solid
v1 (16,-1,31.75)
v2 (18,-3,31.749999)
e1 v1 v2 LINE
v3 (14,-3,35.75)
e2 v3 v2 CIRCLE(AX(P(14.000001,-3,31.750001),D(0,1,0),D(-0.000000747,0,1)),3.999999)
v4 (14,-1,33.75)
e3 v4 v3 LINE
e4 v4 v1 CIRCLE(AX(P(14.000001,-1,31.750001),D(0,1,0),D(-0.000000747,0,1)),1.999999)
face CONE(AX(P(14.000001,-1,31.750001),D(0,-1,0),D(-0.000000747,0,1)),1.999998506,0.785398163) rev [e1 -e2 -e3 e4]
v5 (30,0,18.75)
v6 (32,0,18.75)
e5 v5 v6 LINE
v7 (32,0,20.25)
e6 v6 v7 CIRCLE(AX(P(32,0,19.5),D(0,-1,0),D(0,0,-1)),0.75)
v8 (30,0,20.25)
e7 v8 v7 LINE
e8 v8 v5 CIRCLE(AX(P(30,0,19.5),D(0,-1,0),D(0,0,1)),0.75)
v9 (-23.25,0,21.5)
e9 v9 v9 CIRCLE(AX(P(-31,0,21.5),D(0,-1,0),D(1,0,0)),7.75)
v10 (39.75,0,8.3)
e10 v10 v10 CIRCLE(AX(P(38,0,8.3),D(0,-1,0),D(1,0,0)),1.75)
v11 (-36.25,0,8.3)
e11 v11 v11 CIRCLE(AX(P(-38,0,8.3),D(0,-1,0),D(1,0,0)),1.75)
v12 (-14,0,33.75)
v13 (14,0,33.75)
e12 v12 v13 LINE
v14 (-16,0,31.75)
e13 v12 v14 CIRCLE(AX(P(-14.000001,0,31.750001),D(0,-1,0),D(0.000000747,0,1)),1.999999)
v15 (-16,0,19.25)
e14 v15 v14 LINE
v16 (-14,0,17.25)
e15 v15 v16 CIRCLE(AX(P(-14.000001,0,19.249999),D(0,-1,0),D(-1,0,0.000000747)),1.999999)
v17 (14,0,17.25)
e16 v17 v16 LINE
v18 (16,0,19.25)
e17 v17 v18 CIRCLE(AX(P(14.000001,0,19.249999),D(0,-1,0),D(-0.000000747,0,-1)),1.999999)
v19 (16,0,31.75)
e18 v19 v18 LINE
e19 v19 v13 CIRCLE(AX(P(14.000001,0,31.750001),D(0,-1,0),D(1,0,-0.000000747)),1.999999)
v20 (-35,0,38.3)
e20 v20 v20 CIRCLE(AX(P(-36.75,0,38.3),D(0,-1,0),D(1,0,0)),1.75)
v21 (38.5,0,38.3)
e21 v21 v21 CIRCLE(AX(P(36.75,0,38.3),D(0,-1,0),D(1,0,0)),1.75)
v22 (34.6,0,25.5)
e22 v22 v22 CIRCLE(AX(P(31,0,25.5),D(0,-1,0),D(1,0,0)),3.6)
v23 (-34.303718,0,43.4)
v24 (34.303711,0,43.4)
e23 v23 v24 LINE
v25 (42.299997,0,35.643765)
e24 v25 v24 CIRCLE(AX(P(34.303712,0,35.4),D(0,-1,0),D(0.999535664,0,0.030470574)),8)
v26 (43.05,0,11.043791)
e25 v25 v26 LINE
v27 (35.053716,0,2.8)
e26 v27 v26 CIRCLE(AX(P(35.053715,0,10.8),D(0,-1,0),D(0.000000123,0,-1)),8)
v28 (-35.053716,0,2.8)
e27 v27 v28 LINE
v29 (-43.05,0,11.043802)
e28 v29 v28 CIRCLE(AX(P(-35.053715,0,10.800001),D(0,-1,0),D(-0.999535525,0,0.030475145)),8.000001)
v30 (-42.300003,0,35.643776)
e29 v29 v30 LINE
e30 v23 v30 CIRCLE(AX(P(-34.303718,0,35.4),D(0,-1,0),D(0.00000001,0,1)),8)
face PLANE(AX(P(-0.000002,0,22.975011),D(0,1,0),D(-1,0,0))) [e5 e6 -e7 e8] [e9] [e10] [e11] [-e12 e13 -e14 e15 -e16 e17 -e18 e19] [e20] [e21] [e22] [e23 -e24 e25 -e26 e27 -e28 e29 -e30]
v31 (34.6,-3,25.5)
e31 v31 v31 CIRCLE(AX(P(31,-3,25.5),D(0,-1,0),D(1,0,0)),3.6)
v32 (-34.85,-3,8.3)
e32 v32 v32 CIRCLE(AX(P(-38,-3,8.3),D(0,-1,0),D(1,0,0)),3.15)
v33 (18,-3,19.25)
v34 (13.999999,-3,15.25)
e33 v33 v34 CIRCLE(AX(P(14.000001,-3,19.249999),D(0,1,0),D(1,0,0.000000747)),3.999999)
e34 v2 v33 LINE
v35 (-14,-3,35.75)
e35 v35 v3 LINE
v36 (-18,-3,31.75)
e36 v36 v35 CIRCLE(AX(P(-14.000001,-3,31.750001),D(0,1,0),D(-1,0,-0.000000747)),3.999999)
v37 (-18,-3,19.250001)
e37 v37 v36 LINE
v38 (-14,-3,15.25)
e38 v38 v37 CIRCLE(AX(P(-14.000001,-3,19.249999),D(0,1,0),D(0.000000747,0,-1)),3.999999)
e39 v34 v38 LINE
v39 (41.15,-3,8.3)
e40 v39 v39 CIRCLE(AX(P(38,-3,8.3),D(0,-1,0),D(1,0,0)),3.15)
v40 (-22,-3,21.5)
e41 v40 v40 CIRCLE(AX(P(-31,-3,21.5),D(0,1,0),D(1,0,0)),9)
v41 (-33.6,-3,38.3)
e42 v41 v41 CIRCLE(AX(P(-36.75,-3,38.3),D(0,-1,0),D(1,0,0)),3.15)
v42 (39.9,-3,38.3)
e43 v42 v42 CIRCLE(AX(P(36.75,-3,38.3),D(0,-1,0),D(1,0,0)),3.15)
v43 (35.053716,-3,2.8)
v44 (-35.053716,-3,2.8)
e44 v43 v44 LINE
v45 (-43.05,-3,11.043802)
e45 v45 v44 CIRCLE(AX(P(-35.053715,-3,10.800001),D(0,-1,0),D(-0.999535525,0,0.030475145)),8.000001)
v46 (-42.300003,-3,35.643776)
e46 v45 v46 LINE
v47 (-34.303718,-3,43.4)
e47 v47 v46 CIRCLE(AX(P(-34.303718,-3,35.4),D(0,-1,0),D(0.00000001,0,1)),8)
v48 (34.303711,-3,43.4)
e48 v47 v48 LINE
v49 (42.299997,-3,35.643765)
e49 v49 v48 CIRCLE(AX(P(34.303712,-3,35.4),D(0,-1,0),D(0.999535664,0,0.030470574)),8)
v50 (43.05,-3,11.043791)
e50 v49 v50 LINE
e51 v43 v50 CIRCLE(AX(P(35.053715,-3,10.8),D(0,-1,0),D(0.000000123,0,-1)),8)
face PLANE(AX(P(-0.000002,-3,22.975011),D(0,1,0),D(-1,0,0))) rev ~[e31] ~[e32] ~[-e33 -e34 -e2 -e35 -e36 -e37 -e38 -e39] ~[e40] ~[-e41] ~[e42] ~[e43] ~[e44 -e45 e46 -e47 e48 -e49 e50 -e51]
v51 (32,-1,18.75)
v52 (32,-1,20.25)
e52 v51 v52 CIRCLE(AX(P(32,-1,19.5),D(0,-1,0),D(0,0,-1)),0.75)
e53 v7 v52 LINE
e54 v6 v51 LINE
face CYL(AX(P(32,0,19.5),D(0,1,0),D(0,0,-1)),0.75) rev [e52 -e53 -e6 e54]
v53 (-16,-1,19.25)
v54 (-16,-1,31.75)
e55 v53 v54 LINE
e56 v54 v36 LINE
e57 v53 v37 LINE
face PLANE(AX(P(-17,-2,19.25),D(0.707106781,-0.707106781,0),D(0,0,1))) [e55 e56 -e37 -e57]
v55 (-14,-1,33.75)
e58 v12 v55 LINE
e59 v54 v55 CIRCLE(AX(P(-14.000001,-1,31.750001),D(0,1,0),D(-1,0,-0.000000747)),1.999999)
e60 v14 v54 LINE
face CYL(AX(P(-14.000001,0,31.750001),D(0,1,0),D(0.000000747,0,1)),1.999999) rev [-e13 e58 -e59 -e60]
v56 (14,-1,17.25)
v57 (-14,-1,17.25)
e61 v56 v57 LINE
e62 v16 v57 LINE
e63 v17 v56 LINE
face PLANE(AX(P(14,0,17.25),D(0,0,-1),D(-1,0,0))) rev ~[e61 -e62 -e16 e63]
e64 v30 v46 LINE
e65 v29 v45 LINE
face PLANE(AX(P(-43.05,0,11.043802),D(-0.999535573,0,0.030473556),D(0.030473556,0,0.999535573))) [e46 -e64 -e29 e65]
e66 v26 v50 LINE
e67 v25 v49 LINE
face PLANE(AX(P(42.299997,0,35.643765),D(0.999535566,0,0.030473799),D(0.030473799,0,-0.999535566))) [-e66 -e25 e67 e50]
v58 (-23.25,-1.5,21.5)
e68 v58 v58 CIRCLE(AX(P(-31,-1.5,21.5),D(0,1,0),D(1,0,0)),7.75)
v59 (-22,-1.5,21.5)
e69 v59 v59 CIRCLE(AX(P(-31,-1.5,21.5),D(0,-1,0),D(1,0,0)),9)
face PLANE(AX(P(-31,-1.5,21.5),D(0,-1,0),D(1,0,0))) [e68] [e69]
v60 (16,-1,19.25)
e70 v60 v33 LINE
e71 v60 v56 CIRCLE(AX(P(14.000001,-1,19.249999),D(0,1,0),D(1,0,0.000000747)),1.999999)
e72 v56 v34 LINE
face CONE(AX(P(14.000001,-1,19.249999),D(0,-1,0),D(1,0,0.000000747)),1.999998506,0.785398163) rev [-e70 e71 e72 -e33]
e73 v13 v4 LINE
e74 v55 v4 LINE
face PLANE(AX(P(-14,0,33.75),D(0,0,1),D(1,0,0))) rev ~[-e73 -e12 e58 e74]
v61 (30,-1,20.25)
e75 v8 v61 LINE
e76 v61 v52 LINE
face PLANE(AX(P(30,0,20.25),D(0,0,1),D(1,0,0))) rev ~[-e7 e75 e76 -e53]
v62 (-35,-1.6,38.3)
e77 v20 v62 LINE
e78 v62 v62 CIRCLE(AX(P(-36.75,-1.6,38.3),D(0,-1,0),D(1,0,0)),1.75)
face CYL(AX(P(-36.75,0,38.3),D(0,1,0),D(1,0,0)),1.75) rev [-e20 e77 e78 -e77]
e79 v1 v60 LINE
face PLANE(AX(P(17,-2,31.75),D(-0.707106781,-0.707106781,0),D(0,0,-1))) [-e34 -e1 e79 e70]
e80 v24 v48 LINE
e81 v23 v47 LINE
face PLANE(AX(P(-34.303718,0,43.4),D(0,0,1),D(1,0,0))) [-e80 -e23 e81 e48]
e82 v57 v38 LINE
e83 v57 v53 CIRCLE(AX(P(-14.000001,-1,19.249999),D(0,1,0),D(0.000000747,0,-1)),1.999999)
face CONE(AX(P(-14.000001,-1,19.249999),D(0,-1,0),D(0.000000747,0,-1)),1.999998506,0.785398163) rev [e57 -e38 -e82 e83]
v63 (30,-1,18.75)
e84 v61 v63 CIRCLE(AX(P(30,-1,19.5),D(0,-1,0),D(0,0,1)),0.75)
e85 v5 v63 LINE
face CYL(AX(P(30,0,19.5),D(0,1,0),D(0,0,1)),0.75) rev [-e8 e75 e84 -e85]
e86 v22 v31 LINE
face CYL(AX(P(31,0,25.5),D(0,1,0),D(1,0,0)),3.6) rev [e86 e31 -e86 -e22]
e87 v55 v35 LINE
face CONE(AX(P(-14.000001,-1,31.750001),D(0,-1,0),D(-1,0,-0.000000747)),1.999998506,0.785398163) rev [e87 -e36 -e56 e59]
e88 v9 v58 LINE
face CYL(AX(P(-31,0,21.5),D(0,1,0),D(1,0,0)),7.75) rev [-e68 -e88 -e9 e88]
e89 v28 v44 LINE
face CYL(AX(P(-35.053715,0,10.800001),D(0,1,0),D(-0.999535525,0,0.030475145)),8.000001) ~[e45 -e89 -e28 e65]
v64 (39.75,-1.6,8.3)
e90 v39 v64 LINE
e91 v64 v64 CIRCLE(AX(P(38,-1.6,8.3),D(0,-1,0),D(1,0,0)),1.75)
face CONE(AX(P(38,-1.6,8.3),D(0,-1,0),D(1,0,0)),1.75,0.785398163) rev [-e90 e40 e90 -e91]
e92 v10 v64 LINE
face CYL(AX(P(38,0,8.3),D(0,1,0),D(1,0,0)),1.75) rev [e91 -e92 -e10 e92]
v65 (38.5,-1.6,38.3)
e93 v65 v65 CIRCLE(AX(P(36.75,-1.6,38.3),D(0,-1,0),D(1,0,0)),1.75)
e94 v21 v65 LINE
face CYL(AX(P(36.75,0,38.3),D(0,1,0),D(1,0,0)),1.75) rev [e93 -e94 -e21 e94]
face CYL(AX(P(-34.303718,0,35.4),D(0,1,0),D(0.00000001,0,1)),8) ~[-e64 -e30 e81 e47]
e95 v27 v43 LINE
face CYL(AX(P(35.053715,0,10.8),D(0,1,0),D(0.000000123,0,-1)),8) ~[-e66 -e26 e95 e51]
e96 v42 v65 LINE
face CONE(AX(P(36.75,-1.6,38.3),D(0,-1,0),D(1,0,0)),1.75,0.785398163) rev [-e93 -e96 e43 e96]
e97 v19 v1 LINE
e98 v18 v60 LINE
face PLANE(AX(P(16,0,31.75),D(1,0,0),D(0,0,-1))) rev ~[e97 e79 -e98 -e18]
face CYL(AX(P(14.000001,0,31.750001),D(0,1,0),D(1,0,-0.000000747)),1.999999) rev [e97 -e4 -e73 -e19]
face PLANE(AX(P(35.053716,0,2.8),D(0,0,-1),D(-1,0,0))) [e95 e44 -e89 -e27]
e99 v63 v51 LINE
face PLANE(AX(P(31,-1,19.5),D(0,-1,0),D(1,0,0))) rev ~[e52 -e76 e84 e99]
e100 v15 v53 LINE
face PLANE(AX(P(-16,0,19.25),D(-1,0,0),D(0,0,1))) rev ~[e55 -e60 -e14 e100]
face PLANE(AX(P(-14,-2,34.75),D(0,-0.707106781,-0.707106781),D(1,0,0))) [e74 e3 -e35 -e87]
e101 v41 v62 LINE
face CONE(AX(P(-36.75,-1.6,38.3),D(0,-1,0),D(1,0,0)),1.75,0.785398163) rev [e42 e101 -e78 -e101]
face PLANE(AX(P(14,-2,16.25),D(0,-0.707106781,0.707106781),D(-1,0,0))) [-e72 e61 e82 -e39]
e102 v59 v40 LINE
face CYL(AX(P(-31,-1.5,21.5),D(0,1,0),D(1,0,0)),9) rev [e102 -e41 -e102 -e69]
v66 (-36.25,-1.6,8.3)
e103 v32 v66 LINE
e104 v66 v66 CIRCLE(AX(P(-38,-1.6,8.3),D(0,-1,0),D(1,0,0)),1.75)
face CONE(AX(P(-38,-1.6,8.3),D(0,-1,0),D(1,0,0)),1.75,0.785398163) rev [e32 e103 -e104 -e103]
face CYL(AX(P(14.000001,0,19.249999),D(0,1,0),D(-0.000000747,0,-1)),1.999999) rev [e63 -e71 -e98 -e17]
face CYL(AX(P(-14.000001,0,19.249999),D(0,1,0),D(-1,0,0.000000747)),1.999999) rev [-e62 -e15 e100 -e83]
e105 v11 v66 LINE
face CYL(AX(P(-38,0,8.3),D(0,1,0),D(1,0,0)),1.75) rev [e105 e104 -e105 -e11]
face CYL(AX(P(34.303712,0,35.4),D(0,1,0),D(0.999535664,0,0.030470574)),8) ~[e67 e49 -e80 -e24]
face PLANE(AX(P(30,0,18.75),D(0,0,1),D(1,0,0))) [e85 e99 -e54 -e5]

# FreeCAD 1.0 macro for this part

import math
import FreeCAD as App
import Part
import Sketcher
from FreeCAD import Vector


def edges_at(feature, points):
    """Names of the edges that pass closest to the given points."""
    edges = feature.Shape.Edges
    near = lambda p: min(range(len(edges)), key=lambda i: edges[i].distToShape(Part.Vertex(*p))[0])
    return sorted({f"Edge{near(p) + 1}" for p in points})

doc = App.newDocument("Part")
params = doc.addObject("Spreadsheet::Sheet", "Params")
for row, (alias, value) in enumerate([
    ("sketch1_radius", "8 mm"),
    ("sketch1_radius2", "8.000001 mm"),
    ("sketch1_radius3", "8 mm"),
    ("sketch1_radius4", "8 mm"),
    ("sketch1_radius5", "1.999999 mm"),
    ("pad1_length", "3 mm"),
    ("chamfer_size", "2 mm"),
    ("chamfer2_size", "1.4 mm"),
    ("sketch2_diameter", "18 mm"),
    ("sketch3_width", "2 mm"),
    ("sketch3_radius", "0.75 mm"),
    ("pocket2_length", "1 mm"),
], start=1):
    params.set(f"A{row}", alias)
    params.set(f"B{row}", "=" + value)
    params.setAlias(f"B{row}", alias)

body = doc.addObject("PartDesign::Body", "Body")

# Sketch on XZ plane
sketch1 = body.newObject("Sketcher::SketchObject", "Sketch")
sketch1.AttachmentSupport = (doc.getObject("XZ_Plane"), [""])
sketch1.MapMode = "FlatFace"
sketch1.addGeometry(Part.LineSegment(Vector(34.303711, 43.4, 0), Vector(-34.303718, 43.4, 0)), False)
sketch1.addGeometry(Part.ArcOfCircle(Part.Circle(Vector(-34.303718, 35.4, 0), Vector(0, 0, 1), 8), math.radians(89.999999), math.radians(178.253813)), False)
sketch1.addGeometry(Part.LineSegment(Vector(-42.300003, 35.643776, 0), Vector(-43.05, 11.043802, 0)), False)
sketch1.addGeometry(Part.ArcOfCircle(Part.Circle(Vector(-35.053715, 10.800001, 0), Vector(0, 0, 1), 8.000001), math.radians(178.253632), math.radians(269.999993)), False)
sketch1.addGeometry(Part.LineSegment(Vector(-35.053716, 2.8, 0), Vector(35.053716, 2.8, 0)), False)
sketch1.addGeometry(Part.ArcOfCircle(Part.Circle(Vector(35.053715, 10.8, 0), Vector(0, 0, 1), 8), math.radians(-89.999993), math.radians(1.746291)), False)
sketch1.addGeometry(Part.LineSegment(Vector(43.05, 11.043791, 0), Vector(42.299997, 35.643765, 0)), False)
sketch1.addGeometry(Part.ArcOfCircle(Part.Circle(Vector(34.303712, 35.4, 0), Vector(0, 0, 1), 8), math.radians(1.746106), math.radians(90.000008)), False)
sketch1.addGeometry(Part.Circle(Vector(38, 8.3, 0), Vector(0, 0, 1), 1.75), False)
sketch1.addGeometry(Part.Circle(Vector(-38, 8.3, 0), Vector(0, 0, 1), 1.75), False)
sketch1.addGeometry(Part.Circle(Vector(-31, 21.5, 0), Vector(0, 0, 1), 7.75), False)
sketch1.addGeometry(Part.Circle(Vector(31, 25.5, 0), Vector(0, 0, 1), 3.6), False)
sketch1.addGeometry(Part.Circle(Vector(36.75, 38.3, 0), Vector(0, 0, 1), 1.75), False)
sketch1.addGeometry(Part.LineSegment(Vector(-14, 33.75, 0), Vector(14, 33.75, 0)), False)
sketch1.addGeometry(Part.ArcOfCircle(Part.Circle(Vector(14.000001, 31.750001, 0), Vector(0, 0, 1), 1.999999), math.radians(-0.000043), math.radians(90.000043)), False)
sketch1.addGeometry(Part.LineSegment(Vector(16, 31.75, 0), Vector(16, 19.25, 0)), False)
sketch1.addGeometry(Part.ArcOfCircle(Part.Circle(Vector(14.000001, 19.249999, 0), Vector(0, 0, 1), 1.999999), math.radians(-90.000043), math.radians(0.000043)), False)
sketch1.addGeometry(Part.LineSegment(Vector(14, 17.25, 0), Vector(-14, 17.25, 0)), False)
sketch1.addGeometry(Part.ArcOfCircle(Part.Circle(Vector(-14.000001, 19.249999, 0), Vector(0, 0, 1), 1.999999), math.radians(179.999957), math.radians(270.000043)), False)
sketch1.addGeometry(Part.LineSegment(Vector(-16, 19.25, 0), Vector(-16, 31.75, 0)), False)
sketch1.addGeometry(Part.ArcOfCircle(Part.Circle(Vector(-14.000001, 31.750001, 0), Vector(0, 0, 1), 1.999999), math.radians(89.999957), math.radians(180.000043)), False)
sketch1.addGeometry(Part.Circle(Vector(-36.75, 38.3, 0), Vector(0, 0, 1), 1.75), False)
sketch1.addConstraint(Sketcher.Constraint("Coincident", 0, 2, 1, 1))
sketch1.addConstraint(Sketcher.Constraint("Coincident", 1, 2, 2, 1))
sketch1.addConstraint(Sketcher.Constraint("Coincident", 2, 2, 3, 1))
sketch1.addConstraint(Sketcher.Constraint("Coincident", 3, 2, 4, 1))
sketch1.addConstraint(Sketcher.Constraint("Coincident", 4, 2, 5, 1))
sketch1.addConstraint(Sketcher.Constraint("Coincident", 5, 2, 6, 1))
sketch1.addConstraint(Sketcher.Constraint("Coincident", 6, 2, 7, 1))
sketch1.addConstraint(Sketcher.Constraint("Coincident", 7, 2, 0, 1))
sketch1.addConstraint(Sketcher.Constraint("Coincident", 13, 2, 14, 2))
sketch1.addConstraint(Sketcher.Constraint("Coincident", 14, 1, 15, 1))
sketch1.addConstraint(Sketcher.Constraint("Coincident", 15, 2, 16, 2))
sketch1.addConstraint(Sketcher.Constraint("Coincident", 16, 1, 17, 1))
sketch1.addConstraint(Sketcher.Constraint("Coincident", 17, 2, 18, 2))
sketch1.addConstraint(Sketcher.Constraint("Coincident", 18, 1, 19, 1))
sketch1.addConstraint(Sketcher.Constraint("Coincident", 19, 2, 20, 2))
sketch1.addConstraint(Sketcher.Constraint("Coincident", 20, 1, 13, 1))
sketch1.addConstraint(Sketcher.Constraint("Horizontal", 0))
sketch1.addConstraint(Sketcher.Constraint("Horizontal", 4))
sketch1.addConstraint(Sketcher.Constraint("Horizontal", 13))
sketch1.addConstraint(Sketcher.Constraint("Vertical", 15))
sketch1.addConstraint(Sketcher.Constraint("Horizontal", 17))
sketch1.addConstraint(Sketcher.Constraint("Vertical", 19))
sketch1.addConstraint(Sketcher.Constraint("Radius", 1, 8.0))
sketch1.addConstraint(Sketcher.Constraint("Radius", 3, 8.000001))
sketch1.addConstraint(Sketcher.Constraint("Radius", 5, 8.0))
sketch1.addConstraint(Sketcher.Constraint("Radius", 7, 8.0))
sketch1.addConstraint(Sketcher.Constraint("Radius", 14, 1.999999))
sketch1.addConstraint(Sketcher.Constraint("Radius", 16, 1.999999))
sketch1.addConstraint(Sketcher.Constraint("Radius", 18, 1.999999))
sketch1.addConstraint(Sketcher.Constraint("Radius", 20, 1.999999))
sketch1.addConstraint(Sketcher.Constraint("Diameter", 8, 3.5))
sketch1.addConstraint(Sketcher.Constraint("Diameter", 9, 3.5))
sketch1.addConstraint(Sketcher.Constraint("Diameter", 10, 15.5))
sketch1.addConstraint(Sketcher.Constraint("Diameter", 11, 7.2))
sketch1.addConstraint(Sketcher.Constraint("Diameter", 12, 3.5))
sketch1.addConstraint(Sketcher.Constraint("Diameter", 21, 3.5))
sketch1.addConstraint(Sketcher.Constraint("DistanceX", 13, 1, 13, 2, 28.0))
sketch1.addConstraint(Sketcher.Constraint("DistanceX", 17, 2, 17, 1, 28.0))
sketch1.addConstraint(Sketcher.Constraint("DistanceY", 15, 2, 15, 1, 12.5))
sketch1.addConstraint(Sketcher.Constraint("DistanceY", 19, 1, 19, 2, 12.5))
sketch1.addConstraint(Sketcher.Constraint("DistanceX", -1, 1, 8, 3, 38.0))
sketch1.addConstraint(Sketcher.Constraint("DistanceX", 9, 3, -1, 1, 38.0))
sketch1.addConstraint(Sketcher.Constraint("DistanceX", 10, 3, -1, 1, 31.0))
sketch1.addConstraint(Sketcher.Constraint("DistanceX", -1, 1, 11, 3, 31.0))
sketch1.addConstraint(Sketcher.Constraint("DistanceX", -1, 1, 14, 3, 14.000001))
sketch1.addConstraint(Sketcher.Constraint("DistanceX", 18, 3, -1, 1, 14.000001))
sketch1.addConstraint(Sketcher.Constraint("DistanceX", -1, 1, 13, 2, 14.0))
sketch1.addConstraint(Sketcher.Constraint("DistanceX", -1, 1, 16, 1, 14.0))
sketch1.addConstraint(Sketcher.Constraint("DistanceY", 10, 3, 11, 3, 4.0))
sketch1.addConstraint(Sketcher.Constraint("DistanceY", 8, 3, 12, 3, 30.0))
sketch1.addConstraint(Sketcher.Constraint("DistanceY", 14, 1, 13, 2, 2.0))
sketch1.addConstraint(Sketcher.Constraint("DistanceY", 16, 1, 15, 2, 2.0))
sketch1.addConstraint(Sketcher.Constraint("DistanceY", 17, 2, 18, 1, 2.0))
sketch1.addConstraint(Sketcher.Constraint("DistanceY", -1, 1, 1, 3, 35.4))
sketch1.addConstraint(Sketcher.Constraint("DistanceY", -1, 1, 3, 3, 10.800001))
sketch1.addConstraint(Sketcher.Constraint("DistanceY", -1, 1, 8, 3, 8.3))
sketch1.addConstraint(Sketcher.Constraint("DistanceY", -1, 1, 9, 3, 8.3))
sketch1.addConstraint(Sketcher.Constraint("DistanceY", -1, 1, 10, 3, 21.5))
sketch1.addConstraint(Sketcher.Constraint("DistanceY", -1, 1, 21, 3, 38.3))
sketch1.addConstraint(Sketcher.Constraint("DistanceX", -1, 1, 12, 3, 36.75))
sketch1.addConstraint(Sketcher.Constraint("DistanceY", -1, 1, 14, 3, 31.750001))
sketch1.addConstraint(Sketcher.Constraint("DistanceX", 21, 3, -1, 1, 36.75))
sketch1.addConstraint(Sketcher.Constraint("DistanceX", 2, 2, -1, 1, 43.05))
sketch1.addConstraint(Sketcher.Constraint("DistanceX", -1, 1, 5, 2, 43.05))
sketch1.addConstraint(Sketcher.Constraint("DistanceX", 0, 2, 0, 1, 68.607429))
sketch1.addConstraint(Sketcher.Constraint("DistanceY", 9, 3, 2, 2, 2.743802))
sketch1.addConstraint(Sketcher.Constraint("DistanceX", 4, 1, 4, 2, 70.107432))
sketch1.addConstraint(Sketcher.Constraint("DistanceX", 1, 3, -1, 1, 34.303718))
sketch1.addConstraint(Sketcher.Constraint("DistanceX", 0, 2, -1, 1, 34.303718))
sketch1.addConstraint(Sketcher.Constraint("DistanceY", -1, 1, 5, 2, 11.043791))
sketch1.addConstraint(Sketcher.Constraint("DistanceX", 1, 3, 7, 3, 68.60743))
sketch1.addConstraint(Sketcher.Constraint("DistanceX", 1, 2, 3, 3, 7.246288))
sketch1.addConstraint(Sketcher.Constraint("DistanceX", 5, 3, 6, 2, 7.246282))
sketch1.addConstraint(Sketcher.Constraint("DistanceX", 3, 2, -1, 1, 35.053716))
sketch1.setExpression("Constraints[22]", "Params.sketch1_radius")
sketch1.setExpression("Constraints[23]", "Params.sketch1_radius2")
sketch1.setExpression("Constraints[24]", "Params.sketch1_radius3")
sketch1.setExpression("Constraints[25]", "Params.sketch1_radius4")
sketch1.setExpression("Constraints[26]", "Params.sketch1_radius5")
pad1 = body.newObject("PartDesign::Pad", "Pad")
pad1.Profile = sketch1
pad1.setExpression("Length", "Params.pad1_length")
doc.recompute()

chamfer = body.newObject("PartDesign::Chamfer", "Chamfer")
chamfer.Base = (pad1, edges_at(pad1, [(0, -3, 33.75)]))
chamfer.setExpression("Size", "Params.chamfer_size")
doc.recompute()

chamfer2 = body.newObject("PartDesign::Chamfer", "Chamfer001")
chamfer2.Base = (chamfer, edges_at(chamfer, [
    (-39.75, -3, 8.3),
    (-38.5, -3, 38.3),
    (36.25, -3, 8.3),
    (35, -3, 38.3),
]))
chamfer2.setExpression("Size", "Params.chamfer2_size")

# Sketch on XZ plane
sketch2 = body.newObject("Sketcher::SketchObject", "Sketch001")
sketch2.AttachmentSupport = (doc.getObject("XZ_Plane"), [""])
sketch2.MapMode = "FlatFace"
sketch2.AttachmentOffset = App.Placement(Vector(0, 0, 1.5), App.Rotation())
sketch2.addGeometry(Part.Circle(Vector(-31, 22, 0), Vector(0, 0, 1), 9), False)
sketch2.addConstraint(Sketcher.Constraint("Diameter", 0, 18.0))
sketch2.addConstraint(Sketcher.Constraint("DistanceX", 0, 3, -1, 1, 31.0))
sketch2.addConstraint(Sketcher.Constraint("DistanceY", -1, 1, 0, 3, 21.5))
sketch2.setExpression("Constraints[0]", "Params.sketch2_diameter")
pocket1 = body.newObject("PartDesign::Pocket", "Pocket")
pocket1.Profile = sketch2
pocket1.Type = "ThroughAll"
pocket1.Reversed = True

# Sketch on XZ plane
sketch3 = body.newObject("Sketcher::SketchObject", "Sketch002")
sketch3.AttachmentSupport = (doc.getObject("XZ_Plane"), [""])
sketch3.MapMode = "FlatFace"
sketch3.addGeometry(Part.ArcOfCircle(Part.Circle(Vector(30, 19.5, 0), Vector(0, 0, 1), 0.8), math.radians(90), math.radians(270)), False)
sketch3.addGeometry(Part.LineSegment(Vector(30, 18.8, 0), Vector(32, 18.8, 0)), False)
sketch3.addGeometry(Part.ArcOfCircle(Part.Circle(Vector(32, 19.5, 0), Vector(0, 0, 1), 0.8), math.radians(-90), math.radians(90)), False)
sketch3.addGeometry(Part.LineSegment(Vector(32, 20.2, 0), Vector(30, 20.2, 0)), False)
sketch3.addConstraint(Sketcher.Constraint("Tangent", 0, 2, 1, 1))
sketch3.addConstraint(Sketcher.Constraint("Tangent", 1, 2, 2, 1))
sketch3.addConstraint(Sketcher.Constraint("Tangent", 2, 2, 3, 1))
sketch3.addConstraint(Sketcher.Constraint("Tangent", 3, 2, 0, 1))
sketch3.addConstraint(Sketcher.Constraint("Horizontal", 1))
sketch3.addConstraint(Sketcher.Constraint("Horizontal", 3))
sketch3.addConstraint(Sketcher.Constraint("DistanceX", 1, 1, 1, 2, 2.0))
sketch3.addConstraint(Sketcher.Constraint("Radius", 0, 0.75))
sketch3.addConstraint(Sketcher.Constraint("DistanceX", -1, 1, 0, 3, 30.0))
sketch3.addConstraint(Sketcher.Constraint("DistanceY", -1, 1, 0, 3, 19.5))
sketch3.setExpression("Constraints[6]", "Params.sketch3_width")
sketch3.setExpression("Constraints[7]", "Params.sketch3_radius")
pocket2 = body.newObject("PartDesign::Pocket", "Pocket001")
pocket2.Profile = sketch3
pocket2.setExpression("Length", "Params.pocket2_length")
pocket2.Reversed = True

doc.recompute()
